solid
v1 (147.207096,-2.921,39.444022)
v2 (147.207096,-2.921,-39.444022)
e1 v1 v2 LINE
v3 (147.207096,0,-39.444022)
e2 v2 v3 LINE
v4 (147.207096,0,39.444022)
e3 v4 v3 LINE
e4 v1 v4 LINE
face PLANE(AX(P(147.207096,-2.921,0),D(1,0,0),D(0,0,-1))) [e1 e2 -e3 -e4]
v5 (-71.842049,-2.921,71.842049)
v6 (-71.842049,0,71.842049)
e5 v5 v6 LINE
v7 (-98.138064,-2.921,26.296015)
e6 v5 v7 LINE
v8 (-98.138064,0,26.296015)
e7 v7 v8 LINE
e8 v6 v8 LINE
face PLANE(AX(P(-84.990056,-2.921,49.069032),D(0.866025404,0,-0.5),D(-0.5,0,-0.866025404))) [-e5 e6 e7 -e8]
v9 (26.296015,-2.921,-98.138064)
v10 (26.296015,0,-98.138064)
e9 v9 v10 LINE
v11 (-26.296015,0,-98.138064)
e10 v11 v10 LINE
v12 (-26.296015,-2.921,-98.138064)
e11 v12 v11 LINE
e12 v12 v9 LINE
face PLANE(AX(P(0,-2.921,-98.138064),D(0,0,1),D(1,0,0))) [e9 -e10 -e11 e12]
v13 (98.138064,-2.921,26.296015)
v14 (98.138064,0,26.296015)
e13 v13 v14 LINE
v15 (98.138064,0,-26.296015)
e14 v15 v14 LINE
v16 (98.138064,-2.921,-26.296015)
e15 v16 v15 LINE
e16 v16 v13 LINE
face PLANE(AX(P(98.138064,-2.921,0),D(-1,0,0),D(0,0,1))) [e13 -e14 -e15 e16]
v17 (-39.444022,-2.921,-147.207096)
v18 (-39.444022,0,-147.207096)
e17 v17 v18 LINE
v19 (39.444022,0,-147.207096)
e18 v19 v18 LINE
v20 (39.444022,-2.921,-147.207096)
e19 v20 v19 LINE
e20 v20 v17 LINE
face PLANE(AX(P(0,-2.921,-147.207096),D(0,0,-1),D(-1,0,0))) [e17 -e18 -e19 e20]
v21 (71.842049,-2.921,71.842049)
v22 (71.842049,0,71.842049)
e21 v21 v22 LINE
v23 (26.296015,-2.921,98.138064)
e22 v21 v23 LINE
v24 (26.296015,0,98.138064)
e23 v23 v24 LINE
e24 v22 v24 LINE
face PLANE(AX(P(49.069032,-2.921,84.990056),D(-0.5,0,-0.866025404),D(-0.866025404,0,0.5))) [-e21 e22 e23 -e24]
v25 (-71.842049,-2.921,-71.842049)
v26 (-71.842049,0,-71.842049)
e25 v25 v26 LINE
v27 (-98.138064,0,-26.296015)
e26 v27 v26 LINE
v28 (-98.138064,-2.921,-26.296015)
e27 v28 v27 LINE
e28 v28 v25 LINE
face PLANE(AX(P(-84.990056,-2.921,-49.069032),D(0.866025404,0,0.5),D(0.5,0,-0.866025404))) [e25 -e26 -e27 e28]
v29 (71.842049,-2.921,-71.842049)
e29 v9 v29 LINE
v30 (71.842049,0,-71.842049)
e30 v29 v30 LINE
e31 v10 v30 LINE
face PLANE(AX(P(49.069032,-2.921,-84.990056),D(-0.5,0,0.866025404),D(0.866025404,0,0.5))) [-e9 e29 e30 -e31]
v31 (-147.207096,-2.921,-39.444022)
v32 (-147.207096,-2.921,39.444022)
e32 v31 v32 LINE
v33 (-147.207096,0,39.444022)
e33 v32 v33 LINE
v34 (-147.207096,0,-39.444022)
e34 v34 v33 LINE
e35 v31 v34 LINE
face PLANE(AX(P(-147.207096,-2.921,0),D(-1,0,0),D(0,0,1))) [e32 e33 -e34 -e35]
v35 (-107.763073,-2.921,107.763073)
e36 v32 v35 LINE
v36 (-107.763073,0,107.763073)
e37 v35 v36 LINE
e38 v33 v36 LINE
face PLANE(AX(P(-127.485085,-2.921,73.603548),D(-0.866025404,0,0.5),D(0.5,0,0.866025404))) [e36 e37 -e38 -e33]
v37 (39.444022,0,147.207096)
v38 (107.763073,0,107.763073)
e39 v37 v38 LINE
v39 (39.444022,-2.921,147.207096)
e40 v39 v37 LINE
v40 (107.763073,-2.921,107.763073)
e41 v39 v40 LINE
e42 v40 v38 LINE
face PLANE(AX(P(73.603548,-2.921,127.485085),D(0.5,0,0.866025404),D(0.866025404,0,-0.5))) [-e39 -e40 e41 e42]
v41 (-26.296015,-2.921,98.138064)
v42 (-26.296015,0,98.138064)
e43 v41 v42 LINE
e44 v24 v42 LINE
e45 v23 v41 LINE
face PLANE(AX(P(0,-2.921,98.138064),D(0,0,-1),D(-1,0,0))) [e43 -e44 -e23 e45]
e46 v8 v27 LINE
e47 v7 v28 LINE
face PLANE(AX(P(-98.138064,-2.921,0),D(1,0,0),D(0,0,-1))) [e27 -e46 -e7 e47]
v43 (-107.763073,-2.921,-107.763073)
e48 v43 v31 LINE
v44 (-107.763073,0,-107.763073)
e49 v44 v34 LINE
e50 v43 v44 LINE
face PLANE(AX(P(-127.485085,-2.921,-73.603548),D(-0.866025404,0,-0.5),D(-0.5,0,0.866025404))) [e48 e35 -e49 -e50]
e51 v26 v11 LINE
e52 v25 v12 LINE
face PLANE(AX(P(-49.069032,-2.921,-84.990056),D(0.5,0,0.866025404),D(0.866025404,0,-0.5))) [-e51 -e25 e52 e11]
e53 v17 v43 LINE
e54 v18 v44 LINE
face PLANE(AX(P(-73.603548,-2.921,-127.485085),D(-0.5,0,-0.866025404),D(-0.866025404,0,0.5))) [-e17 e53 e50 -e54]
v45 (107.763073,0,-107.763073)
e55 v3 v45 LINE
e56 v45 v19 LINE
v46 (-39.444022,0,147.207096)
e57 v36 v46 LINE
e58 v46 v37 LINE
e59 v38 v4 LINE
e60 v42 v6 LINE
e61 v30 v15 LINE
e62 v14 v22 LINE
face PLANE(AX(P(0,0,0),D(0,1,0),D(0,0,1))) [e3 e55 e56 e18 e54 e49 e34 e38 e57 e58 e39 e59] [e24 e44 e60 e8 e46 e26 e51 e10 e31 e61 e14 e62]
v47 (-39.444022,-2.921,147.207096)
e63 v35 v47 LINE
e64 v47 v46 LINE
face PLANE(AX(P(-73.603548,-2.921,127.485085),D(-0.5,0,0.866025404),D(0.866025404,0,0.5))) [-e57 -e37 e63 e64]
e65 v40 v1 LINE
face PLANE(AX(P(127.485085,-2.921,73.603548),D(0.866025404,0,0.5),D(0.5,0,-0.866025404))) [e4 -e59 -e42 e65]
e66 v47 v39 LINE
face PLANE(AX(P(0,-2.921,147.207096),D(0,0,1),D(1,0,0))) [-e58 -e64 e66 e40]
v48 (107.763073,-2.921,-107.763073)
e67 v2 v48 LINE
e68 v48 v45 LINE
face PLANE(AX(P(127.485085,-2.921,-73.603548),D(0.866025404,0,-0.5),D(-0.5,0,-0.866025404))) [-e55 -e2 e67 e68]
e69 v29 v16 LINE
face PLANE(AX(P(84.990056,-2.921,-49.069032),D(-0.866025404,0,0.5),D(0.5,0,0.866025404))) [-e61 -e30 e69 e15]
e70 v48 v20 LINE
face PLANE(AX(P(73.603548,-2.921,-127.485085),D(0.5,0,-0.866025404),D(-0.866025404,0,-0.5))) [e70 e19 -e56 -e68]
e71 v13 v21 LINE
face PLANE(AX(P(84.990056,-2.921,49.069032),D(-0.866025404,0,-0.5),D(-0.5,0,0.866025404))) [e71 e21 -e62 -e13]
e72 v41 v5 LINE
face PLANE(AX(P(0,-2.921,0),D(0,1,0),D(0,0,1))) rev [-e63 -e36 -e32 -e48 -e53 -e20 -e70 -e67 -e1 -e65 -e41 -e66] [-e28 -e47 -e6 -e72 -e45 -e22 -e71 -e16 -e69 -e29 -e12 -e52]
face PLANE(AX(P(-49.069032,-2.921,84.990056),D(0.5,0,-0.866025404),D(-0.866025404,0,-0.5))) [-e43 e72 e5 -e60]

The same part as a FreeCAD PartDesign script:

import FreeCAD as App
import Part
import Sketcher
from FreeCAD import Vector
Q = App.Units.Quantity


def add_polygon(sketch, points):
    """Adds a closed chain of lines whose ends are joined by coincident constraints."""
    first, n = sketch.GeometryCount, len(points)
    for a, b in zip(points, points[1:] + points[:1]):
        sketch.addGeometry(Part.LineSegment(App.Vector(*a, 0), App.Vector(*b, 0)), False)
    for i in range(n):
        sketch.addConstraint(Sketcher.Constraint("Coincident", first + i, 2, first + (i + 1) % n, 1))

doc = App.newDocument("Part")
body = doc.addObject("PartDesign::Body", "Body")

sketch1 = body.newObject("Sketcher::SketchObject", "Sketch")
sketch1.AttachmentSupport = (doc.getObject("XZ_Plane"), [""])
sketch1.MapMode = "FlatFace"
add_polygon(sketch1, [(147, -39), (108, -108), (39, -147), (-39, -147), (-108, -108), (-147, -39), (-147, 39), (-108, 108), (-39, 147), (39, 147), (108, 108), (147, 39)])
sketch1.addConstraint([
    Sketcher.Constraint("Horizontal", 2),
    Sketcher.Constraint("Vertical", 5),
    Sketcher.Constraint("Horizontal", 8),
    Sketcher.Constraint("Vertical", 11),
    Sketcher.Constraint("Symmetric", 0, 2, 6, 2, -1, 1),
    Sketcher.Constraint("Symmetric", 1, 2, 7, 2, -1, 1),
    Sketcher.Constraint("Symmetric", 3, 2, 9, 2, -1, 1),
    Sketcher.Constraint("Symmetric", 4, 2, 10, 2, -1, 1),
    Sketcher.Constraint("Symmetric", 0, 2, 3, 2, -2),
    Sketcher.Constraint("Perpendicular", 0, 3),
    Sketcher.Constraint("Perpendicular", 1, 4),
    Sketcher.Constraint("Perpendicular", 3, 6),
    Sketcher.Constraint("Perpendicular", 6, 9),
    Sketcher.Constraint("Horizontal", 5, 2, 10, 2),
    Sketcher.Constraint("Equal", 8, 5),
    Sketcher.Constraint("Equal", 0, 1),
    Sketcher.Constraint("Angle", 0, Q("-120 deg")),
    Sketcher.Constraint("DistanceX", 2, 2, 2, 1, Q("78.888045 mm")),
    Sketcher.Constraint("DistanceX", 1, 2, 0, 2, Q("68.319051 mm")),
])
pad1 = body.newObject("PartDesign::Pad", "Pad")
pad1.Profile = sketch1
pad1.Length = Q("0.115 in")

sketch2 = body.newObject("Sketcher::SketchObject", "Sketch001")
sketch2.AttachmentSupport = (doc.getObject("XZ_Plane"), [""])
sketch2.MapMode = "FlatFace"
add_polygon(sketch2, [(-72, -72), (-98, -26), (-98, 26), (-72, 72), (-26, 98), (26, 98), (72, 72), (98, 26), (98, -26), (72, -72), (26, -98), (-26, -98)])
sketch2.addConstraint([
    Sketcher.Constraint("Vertical", 1),
    Sketcher.Constraint("Horizontal", 4),
    Sketcher.Constraint("Vertical", 7),
    Sketcher.Constraint("Horizontal", 10),
    Sketcher.Constraint("Symmetric", 0, 2, 6, 2, -1, 1),
    Sketcher.Constraint("Symmetric", 2, 2, 8, 2, -1, 1),
    Sketcher.Constraint("Symmetric", 3, 2, 9, 2, -1, 1),
    Sketcher.Constraint("Symmetric", 5, 2, 11, 2, -1, 1),
    Sketcher.Constraint("Symmetric", 2, 2, 5, 2, -2),
    Sketcher.Constraint("Perpendicular", 0, 3),
    Sketcher.Constraint("Perpendicular", 2, 5),
    Sketcher.Constraint("Perpendicular", 5, 8),
    Sketcher.Constraint("Perpendicular", 8, 11),
    Sketcher.Constraint("Horizontal", 1, 2, 6, 2),
    Sketcher.Constraint("Equal", 10, 1),
    Sketcher.Constraint("Equal", 2, 3),
    Sketcher.Constraint("Angle", 0, Q("120 deg")),
    Sketcher.Constraint("DistanceX", 4, 1, 4, 2, Q("52.59203 mm")),
    Sketcher.Constraint("Distance", 0, Q("52.59203 mm")),
])
pocket1 = body.newObject("PartDesign::Pocket", "Pocket")
pocket1.Profile = sketch2
pocket1.Type = "ThroughAll"
pocket1.Reversed = True

doc.recompute()
